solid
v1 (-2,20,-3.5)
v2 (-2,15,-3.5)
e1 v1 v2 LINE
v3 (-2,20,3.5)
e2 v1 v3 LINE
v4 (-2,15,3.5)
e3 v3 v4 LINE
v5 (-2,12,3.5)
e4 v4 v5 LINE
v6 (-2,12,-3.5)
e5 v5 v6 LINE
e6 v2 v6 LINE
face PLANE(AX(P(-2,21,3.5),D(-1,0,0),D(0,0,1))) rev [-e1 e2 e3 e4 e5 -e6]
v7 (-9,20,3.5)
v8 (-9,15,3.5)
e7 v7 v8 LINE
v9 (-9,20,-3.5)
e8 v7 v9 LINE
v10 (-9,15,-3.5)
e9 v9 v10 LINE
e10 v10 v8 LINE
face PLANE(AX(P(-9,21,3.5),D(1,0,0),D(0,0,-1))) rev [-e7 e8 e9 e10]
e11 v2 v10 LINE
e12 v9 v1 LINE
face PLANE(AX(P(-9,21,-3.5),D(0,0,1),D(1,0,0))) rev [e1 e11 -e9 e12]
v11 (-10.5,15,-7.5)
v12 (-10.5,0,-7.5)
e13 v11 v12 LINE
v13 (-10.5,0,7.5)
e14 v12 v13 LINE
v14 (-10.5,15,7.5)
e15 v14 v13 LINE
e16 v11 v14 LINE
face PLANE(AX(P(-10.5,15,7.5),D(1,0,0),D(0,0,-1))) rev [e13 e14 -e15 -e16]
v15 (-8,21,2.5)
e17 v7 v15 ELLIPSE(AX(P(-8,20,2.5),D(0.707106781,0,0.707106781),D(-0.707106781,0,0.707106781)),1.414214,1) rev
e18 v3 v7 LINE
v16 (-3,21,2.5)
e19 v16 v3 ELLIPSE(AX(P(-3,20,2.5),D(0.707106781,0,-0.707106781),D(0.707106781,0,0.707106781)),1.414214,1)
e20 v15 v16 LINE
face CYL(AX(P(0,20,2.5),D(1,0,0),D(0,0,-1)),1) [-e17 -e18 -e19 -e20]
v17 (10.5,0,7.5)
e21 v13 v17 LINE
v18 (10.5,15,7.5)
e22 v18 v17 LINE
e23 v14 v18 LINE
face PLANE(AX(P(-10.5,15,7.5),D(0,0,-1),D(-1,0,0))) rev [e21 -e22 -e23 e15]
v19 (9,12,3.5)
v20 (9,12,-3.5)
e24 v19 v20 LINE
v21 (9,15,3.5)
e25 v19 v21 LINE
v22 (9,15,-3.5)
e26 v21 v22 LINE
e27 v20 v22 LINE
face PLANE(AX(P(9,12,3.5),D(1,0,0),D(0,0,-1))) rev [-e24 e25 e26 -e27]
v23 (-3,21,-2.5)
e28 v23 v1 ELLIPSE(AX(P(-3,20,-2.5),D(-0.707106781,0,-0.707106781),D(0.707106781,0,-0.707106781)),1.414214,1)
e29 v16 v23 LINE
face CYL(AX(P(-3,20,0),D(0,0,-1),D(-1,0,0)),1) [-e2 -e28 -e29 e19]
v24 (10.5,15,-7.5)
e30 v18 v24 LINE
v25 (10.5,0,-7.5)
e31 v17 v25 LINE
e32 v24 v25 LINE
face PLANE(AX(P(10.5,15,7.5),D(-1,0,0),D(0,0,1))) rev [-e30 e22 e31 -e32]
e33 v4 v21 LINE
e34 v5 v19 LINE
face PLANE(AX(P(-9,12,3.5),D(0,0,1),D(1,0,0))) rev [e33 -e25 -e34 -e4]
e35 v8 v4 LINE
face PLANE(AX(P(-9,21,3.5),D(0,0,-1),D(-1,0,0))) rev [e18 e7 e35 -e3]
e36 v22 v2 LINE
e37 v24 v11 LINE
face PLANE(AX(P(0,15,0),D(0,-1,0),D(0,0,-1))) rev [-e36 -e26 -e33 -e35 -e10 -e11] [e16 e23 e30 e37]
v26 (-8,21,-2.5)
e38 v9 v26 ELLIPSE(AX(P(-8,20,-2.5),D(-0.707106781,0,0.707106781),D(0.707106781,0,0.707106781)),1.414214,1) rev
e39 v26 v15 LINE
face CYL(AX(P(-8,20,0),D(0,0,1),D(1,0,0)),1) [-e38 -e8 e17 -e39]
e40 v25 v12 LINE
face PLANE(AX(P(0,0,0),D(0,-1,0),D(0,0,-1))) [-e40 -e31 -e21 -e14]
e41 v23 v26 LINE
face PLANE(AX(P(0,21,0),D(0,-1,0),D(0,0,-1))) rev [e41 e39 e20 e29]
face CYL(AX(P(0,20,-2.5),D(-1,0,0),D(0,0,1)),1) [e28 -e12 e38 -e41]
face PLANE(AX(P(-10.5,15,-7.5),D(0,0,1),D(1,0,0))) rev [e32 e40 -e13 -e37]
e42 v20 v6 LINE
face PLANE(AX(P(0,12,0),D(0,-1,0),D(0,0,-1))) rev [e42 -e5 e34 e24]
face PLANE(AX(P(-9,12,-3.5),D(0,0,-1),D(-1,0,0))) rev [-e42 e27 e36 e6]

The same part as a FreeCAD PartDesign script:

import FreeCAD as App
import Part
import Sketcher

V = App.Vector
Q = App.Units.Quantity


def edges_at(feature, points):
    """Names of the edges that pass closest to the given points."""
    edges = feature.Shape.Edges
    near = lambda p: min(range(len(edges)), key=lambda i: edges[i].distToShape(Part.Vertex(*p))[0])
    return sorted({f"Edge{near(p) + 1}" for p in points})

doc = App.newDocument("Part")
body = doc.addObject("PartDesign::Body", "Body")

# Sketch on XZ plane
sketch1 = doc.addObject("Sketcher::SketchObject", "Sketch")
body.addObject(sketch1)
sketch1.AttachmentSupport = (doc.XZ_Plane, [""])
sketch1.MapMode = "FlatFace"
sketch1.addGeometry([
    Part.LineSegment(V(-10, -8, 0), V(-10, 8, 0)),
    Part.LineSegment(V(-10, 8, 0), V(10, 8, 0)),
    Part.LineSegment(V(10, 8, 0), V(10, -8, 0)),
    Part.LineSegment(V(10, -8, 0), V(-10, -8, 0)),
], False)
sketch1.addConstraint([
    Sketcher.Constraint("Coincident", 0, 2, 1, 1),
    Sketcher.Constraint("Coincident", 1, 2, 2, 1),
    Sketcher.Constraint("Coincident", 2, 2, 3, 1),
    Sketcher.Constraint("Coincident", 3, 2, 0, 1),
    Sketcher.Constraint("Vertical", 0),
    Sketcher.Constraint("Horizontal", 1),
    Sketcher.Constraint("Vertical", 2),
    Sketcher.Constraint("Horizontal", 3),
    Sketcher.Constraint("Symmetric", 0, 2, 2, 2, -1, 1),
    Sketcher.Constraint("DistanceX", 1, 1, 1, 2, Q("21 mm")),
    Sketcher.Constraint("DistanceY", 0, 1, 0, 2, Q("15 mm")),
])
pad1 = doc.addObject("PartDesign::Pad", "Pad")
body.addObject(pad1)
pad1.Profile = sketch1
pad1.Length = 15
pad1.Reversed = True

# Sketch on XZ plane
sketch2 = doc.addObject("Sketcher::SketchObject", "Sketch001")
body.addObject(sketch2)
sketch2.AttachmentSupport = (doc.XZ_Plane, [""])
sketch2.MapMode = "FlatFace"
sketch2.AttachmentOffset = App.Placement(V(0, 0, -15), App.Rotation())
sketch2.addGeometry([
    Part.LineSegment(V(-9, -4, 0), V(-9, 4, 0)),
    Part.LineSegment(V(-9, 4, 0), V(9, 4, 0)),
    Part.LineSegment(V(9, 4, 0), V(9, -4, 0)),
    Part.LineSegment(V(9, -4, 0), V(-9, -4, 0)),
], False)
sketch2.addConstraint([
    Sketcher.Constraint("Coincident", 0, 2, 1, 1),
    Sketcher.Constraint("Coincident", 1, 2, 2, 1),
    Sketcher.Constraint("Coincident", 2, 2, 3, 1),
    Sketcher.Constraint("Coincident", 3, 2, 0, 1),
    Sketcher.Constraint("Vertical", 0),
    Sketcher.Constraint("Horizontal", 1),
    Sketcher.Constraint("Vertical", 2),
    Sketcher.Constraint("Horizontal", 3),
    Sketcher.Constraint("Symmetric", 0, 2, 2, 2, -1, 1),
    Sketcher.Constraint("DistanceX", 1, 1, 1, 2, Q("18 mm")),
    Sketcher.Constraint("DistanceY", 0, 1, 0, 2, Q("7 mm")),
])
pocket1 = doc.addObject("PartDesign::Pocket", "Pocket")
body.addObject(pocket1)
pocket1.Profile = sketch2
pocket1.Length = 3
pocket1.Reversed = True

# Sketch on XZ plane
sketch3 = doc.addObject("Sketcher::SketchObject", "Sketch002")
body.addObject(sketch3)
sketch3.AttachmentSupport = (doc.XZ_Plane, [""])
sketch3.MapMode = "FlatFace"
sketch3.AttachmentOffset = App.Placement(V(0, 0, -12), App.Rotation())
sketch3.addGeometry([
    Part.LineSegment(V(-9, -4, 0), V(-9, 4, 0)),
    Part.LineSegment(V(-9, 4, 0), V(-2, 4, 0)),
    Part.LineSegment(V(-2, 4, 0), V(-2, -4, 0)),
    Part.LineSegment(V(-2, -4, 0), V(-9, -4, 0)),
], False)
sketch3.addConstraint([
    Sketcher.Constraint("Coincident", 0, 2, 1, 1),
    Sketcher.Constraint("Coincident", 1, 2, 2, 1),
    Sketcher.Constraint("Coincident", 2, 2, 3, 1),
    Sketcher.Constraint("Coincident", 3, 2, 0, 1),
    Sketcher.Constraint("Vertical", 0),
    Sketcher.Constraint("Horizontal", 1),
    Sketcher.Constraint("Vertical", 2),
    Sketcher.Constraint("Horizontal", 3),
    Sketcher.Constraint("Equal", 3, 0),
    Sketcher.Constraint("DistanceX", 1, 1, 1, 2, Q("7 mm")),
    Sketcher.Constraint("DistanceX", 0, 2, -1, 1, Q("9 mm")),
    Sketcher.Constraint("DistanceY", -1, 1, 0, 2, Q("3.5 mm")),
])
pad2 = doc.addObject("PartDesign::Pad", "Pad001")
body.addObject(pad2)
pad2.Profile = sketch3
pad2.Length = 9
pad2.Reversed = True
doc.recompute()

fillet = doc.addObject("PartDesign::Fillet", "Fillet")
body.addObject(fillet)
fillet.Base = (pad2, edges_at(pad2, [
    (-9, 21, 0),
    (-5.5, 21, 3.5),
    (-2, 21, 0),
    (-5.5, 21, -3.5),
]))
fillet.Radius = 1

doc.recompute()
